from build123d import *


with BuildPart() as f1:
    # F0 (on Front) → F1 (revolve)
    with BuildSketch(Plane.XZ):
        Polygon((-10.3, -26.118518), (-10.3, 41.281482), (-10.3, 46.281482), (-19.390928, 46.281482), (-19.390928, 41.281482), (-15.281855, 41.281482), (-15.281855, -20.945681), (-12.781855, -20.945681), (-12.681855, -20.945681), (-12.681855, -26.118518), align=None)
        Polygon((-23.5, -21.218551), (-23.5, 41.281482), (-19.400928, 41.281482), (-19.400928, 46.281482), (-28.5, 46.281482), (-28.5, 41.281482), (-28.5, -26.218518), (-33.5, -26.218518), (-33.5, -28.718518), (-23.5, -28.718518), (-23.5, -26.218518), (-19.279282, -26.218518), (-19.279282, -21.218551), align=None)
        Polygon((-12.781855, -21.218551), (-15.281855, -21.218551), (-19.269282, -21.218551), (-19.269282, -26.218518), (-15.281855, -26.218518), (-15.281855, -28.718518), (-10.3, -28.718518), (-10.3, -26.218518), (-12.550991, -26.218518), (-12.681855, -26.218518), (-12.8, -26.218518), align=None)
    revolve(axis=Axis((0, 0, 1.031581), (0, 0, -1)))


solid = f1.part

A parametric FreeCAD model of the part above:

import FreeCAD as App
import Part
import Sketcher

V = App.Vector
Q = App.Units.Quantity

doc = App.newDocument("Part")
params = doc.addObject("Spreadsheet::Sheet", "Params")
for row, (alias, value) in enumerate([
    ("sketch1_width", "5 mm"),
    ("sketch1_width2", "10 mm"),
    ("sketch1_length", "5 mm"),
    ("sketch1_width3", "2.6 mm"),
    ("sketch1_width4", "2.5 mm"),
    ("revolution_angle", "360 deg"),
], start=1):
    params.set(f"A{row}", alias)
    params.set(f"B{row}", "=" + value)
    params.setAlias(f"B{row}", alias)

body = doc.addObject("PartDesign::Body", "Body")
body.AllowCompound = True

sketch1 = body.newObject("Sketcher::SketchObject", "Sketch")
sketch1.AttachmentSupport = (doc.getObject("XZ_Plane"), [""])
sketch1.MapMode = "FlatFace"
sketch1.addGeometry(Part.LineSegment(V(-10.3, -26.1, 0), V(-10.3, 46.3, 0)), False)
sketch1.addGeometry(Part.LineSegment(V(-10.3, 46.3, 0), V(-19.4, 46.3, 0)), False)
sketch1.addGeometry(Part.LineSegment(V(-19.4, 46.3, 0), V(-19.4, 41.3, 0)), False)
sketch1.addGeometry(Part.LineSegment(V(-19.4, 41.3, 0), V(-15.3, 41.3, 0)), False)
sketch1.addGeometry(Part.LineSegment(V(-15.3, 41.3, 0), V(-15.3, -20.9, 0)), False)
sketch1.addGeometry(Part.LineSegment(V(-15.3, -20.9, 0), V(-12.7, -20.9, 0)), False)
sketch1.addGeometry(Part.LineSegment(V(-12.7, -20.9, 0), V(-12.7, -26.1, 0)), False)
sketch1.addGeometry(Part.LineSegment(V(-12.7, -26.1, 0), V(-10.3, -26.1, 0)), False)
sketch1.addGeometry(Part.LineSegment(V(-23.5, -21.2, 0), V(-23.5, 41.3, 0)), False)
sketch1.addGeometry(Part.LineSegment(V(-23.5, 41.3, 0), V(-19.4, 41.3, 0)), False)
sketch1.addGeometry(Part.LineSegment(V(-19.4, 41.3, 0), V(-19.4, 46.3, 0)), False)
sketch1.addGeometry(Part.LineSegment(V(-19.4, 46.3, 0), V(-28.5, 46.3, 0)), False)
sketch1.addGeometry(Part.LineSegment(V(-28.5, 46.3, 0), V(-28.5, -26.2, 0)), False)
sketch1.addGeometry(Part.LineSegment(V(-28.5, -26.2, 0), V(-33.5, -26.2, 0)), False)
sketch1.addGeometry(Part.LineSegment(V(-33.5, -26.2, 0), V(-33.5, -28.7, 0)), False)
sketch1.addGeometry(Part.LineSegment(V(-33.5, -28.7, 0), V(-23.5, -28.7, 0)), False)
sketch1.addGeometry(Part.LineSegment(V(-23.5, -28.7, 0), V(-23.5, -26.2, 0)), False)
sketch1.addGeometry(Part.LineSegment(V(-23.5, -26.2, 0), V(-19.3, -26.2, 0)), False)
sketch1.addGeometry(Part.LineSegment(V(-19.3, -26.2, 0), V(-19.3, -21.2, 0)), False)
sketch1.addGeometry(Part.LineSegment(V(-19.3, -21.2, 0), V(-23.5, -21.2, 0)), False)
sketch1.addGeometry(Part.LineSegment(V(-12.8, -21.2, 0), V(-19.3, -21.2, 0)), False)
sketch1.addGeometry(Part.LineSegment(V(-19.3, -21.2, 0), V(-19.3, -26.2, 0)), False)
sketch1.addGeometry(Part.LineSegment(V(-19.3, -26.2, 0), V(-15.3, -26.2, 0)), False)
sketch1.addGeometry(Part.LineSegment(V(-15.3, -26.2, 0), V(-15.3, -28.7, 0)), False)
sketch1.addGeometry(Part.LineSegment(V(-15.3, -28.7, 0), V(-10.3, -28.7, 0)), False)
sketch1.addGeometry(Part.LineSegment(V(-10.3, -28.7, 0), V(-10.3, -26.2, 0)), False)
sketch1.addGeometry(Part.LineSegment(V(-10.3, -26.2, 0), V(-12.8, -26.2, 0)), False)
sketch1.addGeometry(Part.LineSegment(V(-12.8, -26.2, 0), V(-12.8, -21.2, 0)), False)
sketch1.addConstraint(Sketcher.Constraint("Coincident", 0, 2, 1, 1))
sketch1.addConstraint(Sketcher.Constraint("Coincident", 1, 2, 2, 1))
sketch1.addConstraint(Sketcher.Constraint("Coincident", 2, 2, 3, 1))
sketch1.addConstraint(Sketcher.Constraint("Coincident", 3, 2, 4, 1))
sketch1.addConstraint(Sketcher.Constraint("Coincident", 4, 2, 5, 1))
sketch1.addConstraint(Sketcher.Constraint("Coincident", 5, 2, 6, 1))
sketch1.addConstraint(Sketcher.Constraint("Coincident", 6, 2, 7, 1))
sketch1.addConstraint(Sketcher.Constraint("Coincident", 7, 2, 0, 1))
sketch1.addConstraint(Sketcher.Constraint("Coincident", 8, 2, 9, 1))
sketch1.addConstraint(Sketcher.Constraint("Coincident", 9, 2, 10, 1))
sketch1.addConstraint(Sketcher.Constraint("Coincident", 10, 2, 11, 1))
sketch1.addConstraint(Sketcher.Constraint("Coincident", 11, 2, 12, 1))
sketch1.addConstraint(Sketcher.Constraint("Coincident", 12, 2, 13, 1))
sketch1.addConstraint(Sketcher.Constraint("Coincident", 13, 2, 14, 1))
sketch1.addConstraint(Sketcher.Constraint("Coincident", 14, 2, 15, 1))
sketch1.addConstraint(Sketcher.Constraint("Coincident", 15, 2, 16, 1))
sketch1.addConstraint(Sketcher.Constraint("Coincident", 16, 2, 17, 1))
sketch1.addConstraint(Sketcher.Constraint("Coincident", 17, 2, 18, 1))
sketch1.addConstraint(Sketcher.Constraint("Coincident", 18, 2, 19, 1))
sketch1.addConstraint(Sketcher.Constraint("Coincident", 19, 2, 8, 1))
sketch1.addConstraint(Sketcher.Constraint("Coincident", 20, 2, 21, 1))
sketch1.addConstraint(Sketcher.Constraint("Coincident", 21, 2, 22, 1))
sketch1.addConstraint(Sketcher.Constraint("Coincident", 22, 2, 23, 1))
sketch1.addConstraint(Sketcher.Constraint("Coincident", 23, 2, 24, 1))
sketch1.addConstraint(Sketcher.Constraint("Coincident", 24, 2, 25, 1))
sketch1.addConstraint(Sketcher.Constraint("Coincident", 25, 2, 26, 1))
sketch1.addConstraint(Sketcher.Constraint("Coincident", 26, 2, 27, 1))
sketch1.addConstraint(Sketcher.Constraint("Coincident", 27, 2, 20, 1))
sketch1.addConstraint(Sketcher.Constraint("Vertical", 0))
sketch1.addConstraint(Sketcher.Constraint("Horizontal", 1))
sketch1.addConstraint(Sketcher.Constraint("Vertical", 2))
sketch1.addConstraint(Sketcher.Constraint("Horizontal", 3))
sketch1.addConstraint(Sketcher.Constraint("Vertical", 4))
sketch1.addConstraint(Sketcher.Constraint("Horizontal", 5))
sketch1.addConstraint(Sketcher.Constraint("Vertical", 6))
sketch1.addConstraint(Sketcher.Constraint("Horizontal", 7))
sketch1.addConstraint(Sketcher.Constraint("Vertical", 8))
sketch1.addConstraint(Sketcher.Constraint("Horizontal", 9))
sketch1.addConstraint(Sketcher.Constraint("Vertical", 10))
sketch1.addConstraint(Sketcher.Constraint("Horizontal", 11))
sketch1.addConstraint(Sketcher.Constraint("Vertical", 12))
sketch1.addConstraint(Sketcher.Constraint("Horizontal", 13))
sketch1.addConstraint(Sketcher.Constraint("Vertical", 14))
sketch1.addConstraint(Sketcher.Constraint("Horizontal", 15))
sketch1.addConstraint(Sketcher.Constraint("Vertical", 16))
sketch1.addConstraint(Sketcher.Constraint("Horizontal", 17))
sketch1.addConstraint(Sketcher.Constraint("Vertical", 18))
sketch1.addConstraint(Sketcher.Constraint("Horizontal", 19))
sketch1.addConstraint(Sketcher.Constraint("Horizontal", 20))
sketch1.addConstraint(Sketcher.Constraint("Vertical", 21))
sketch1.addConstraint(Sketcher.Constraint("Horizontal", 22))
sketch1.addConstraint(Sketcher.Constraint("Vertical", 23))
sketch1.addConstraint(Sketcher.Constraint("Horizontal", 24))
sketch1.addConstraint(Sketcher.Constraint("Vertical", 25))
sketch1.addConstraint(Sketcher.Constraint("Horizontal", 26))
sketch1.addConstraint(Sketcher.Constraint("Horizontal", 3, 2, 8, 2))
sketch1.addConstraint(Sketcher.Constraint("Horizontal", 1, 2, 10, 2))
sketch1.addConstraint(Sketcher.Constraint("Horizontal", 13, 2, 16, 2))
sketch1.addConstraint(Sketcher.Constraint("Horizontal", 19, 2, 20, 2))
sketch1.addConstraint(Sketcher.Constraint("Horizontal", 17, 2, 21, 2))
sketch1.addConstraint(Sketcher.Constraint("Horizontal", 15, 2, 23, 2))
sketch1.addConstraint(Sketcher.Constraint("Horizontal", 22, 2, 25, 2))
sketch1.addConstraint(Sketcher.Constraint("Vertical", 8, 2, 15, 2))
sketch1.addConstraint(Sketcher.Constraint("Vertical", 4, 2, 22, 2))
sketch1.addConstraint(Sketcher.Constraint("Vertical", 7, 2, 24, 2))
sketch1.addConstraint(Sketcher.Constraint("Equal", 13, 2))
sketch1.addConstraint(Sketcher.Constraint("Equal", 26, 14))
sketch1.addConstraint(Sketcher.Constraint("DistanceX", 13, 2, 13, 1, Q("5 mm")))
sketch1.addConstraint(Sketcher.Constraint("DistanceX", 15, 1, 15, 2, Q("10 mm")))
sketch1.addConstraint(Sketcher.Constraint("Distance", 27, Q("5 mm")))
sketch1.addConstraint(Sketcher.Constraint("DistanceX", 5, 1, 5, 2, Q("2.6 mm")))
sketch1.addConstraint(Sketcher.Constraint("DistanceX", 26, 2, 26, 1, Q("2.5 mm")))
sketch1.addConstraint(Sketcher.Constraint("DistanceY", 0, 1, 0, 2, Q("72.4 mm")))
sketch1.addConstraint(Sketcher.Constraint("DistanceY", 12, 2, 12, 1, Q("72.5 mm")))
sketch1.addConstraint(Sketcher.Constraint("DistanceX", 0, 2, -1, 1, Q("10.3 mm")))
sketch1.addConstraint(Sketcher.Constraint("DistanceX", 8, 2, -1, 1, Q("23.5 mm")))
sketch1.addConstraint(Sketcher.Constraint("DistanceX", 27, 2, 5, 2, Q("0.1 mm")))
sketch1.addConstraint(Sketcher.Constraint("DistanceX", 9, 2, 2, 2, Q("0.01 mm")))
sketch1.addConstraint(Sketcher.Constraint("DistanceX", 18, 2, 20, 2, Q("0.01 mm")))
sketch1.addConstraint(Sketcher.Constraint("DistanceX", 9, 1, 9, 2, Q("4.099072 mm")))
sketch1.addConstraint(Sketcher.Constraint("DistanceX", 17, 1, 17, 2, Q("4.220718 mm")))
sketch1.addConstraint(Sketcher.Constraint("DistanceX", 3, 1, 3, 2, Q("4.109073 mm")))
sketch1.addConstraint(Sketcher.Constraint("DistanceY", 4, 2, 4, 1, Q("62.227163 mm")))
sketch1.addConstraint(Sketcher.Constraint("DistanceY", -1, 1, 0, 2, Q("46.281482 mm")))
sketch1.setExpression("Constraints[67]", "Params.sketch1_width")
sketch1.setExpression("Constraints[68]", "Params.sketch1_width2")
sketch1.setExpression("Constraints[69]", "Params.sketch1_length")
sketch1.setExpression("Constraints[70]", "Params.sketch1_width3")
sketch1.setExpression("Constraints[71]", "Params.sketch1_width4")
revolution = body.newObject("PartDesign::Revolution", "Revolution")
revolution.Profile = sketch1
revolution.ReferenceAxis = (sketch1, ["V_Axis"])
revolution.setExpression("Angle", "Params.revolution_angle")

doc.recompute()
